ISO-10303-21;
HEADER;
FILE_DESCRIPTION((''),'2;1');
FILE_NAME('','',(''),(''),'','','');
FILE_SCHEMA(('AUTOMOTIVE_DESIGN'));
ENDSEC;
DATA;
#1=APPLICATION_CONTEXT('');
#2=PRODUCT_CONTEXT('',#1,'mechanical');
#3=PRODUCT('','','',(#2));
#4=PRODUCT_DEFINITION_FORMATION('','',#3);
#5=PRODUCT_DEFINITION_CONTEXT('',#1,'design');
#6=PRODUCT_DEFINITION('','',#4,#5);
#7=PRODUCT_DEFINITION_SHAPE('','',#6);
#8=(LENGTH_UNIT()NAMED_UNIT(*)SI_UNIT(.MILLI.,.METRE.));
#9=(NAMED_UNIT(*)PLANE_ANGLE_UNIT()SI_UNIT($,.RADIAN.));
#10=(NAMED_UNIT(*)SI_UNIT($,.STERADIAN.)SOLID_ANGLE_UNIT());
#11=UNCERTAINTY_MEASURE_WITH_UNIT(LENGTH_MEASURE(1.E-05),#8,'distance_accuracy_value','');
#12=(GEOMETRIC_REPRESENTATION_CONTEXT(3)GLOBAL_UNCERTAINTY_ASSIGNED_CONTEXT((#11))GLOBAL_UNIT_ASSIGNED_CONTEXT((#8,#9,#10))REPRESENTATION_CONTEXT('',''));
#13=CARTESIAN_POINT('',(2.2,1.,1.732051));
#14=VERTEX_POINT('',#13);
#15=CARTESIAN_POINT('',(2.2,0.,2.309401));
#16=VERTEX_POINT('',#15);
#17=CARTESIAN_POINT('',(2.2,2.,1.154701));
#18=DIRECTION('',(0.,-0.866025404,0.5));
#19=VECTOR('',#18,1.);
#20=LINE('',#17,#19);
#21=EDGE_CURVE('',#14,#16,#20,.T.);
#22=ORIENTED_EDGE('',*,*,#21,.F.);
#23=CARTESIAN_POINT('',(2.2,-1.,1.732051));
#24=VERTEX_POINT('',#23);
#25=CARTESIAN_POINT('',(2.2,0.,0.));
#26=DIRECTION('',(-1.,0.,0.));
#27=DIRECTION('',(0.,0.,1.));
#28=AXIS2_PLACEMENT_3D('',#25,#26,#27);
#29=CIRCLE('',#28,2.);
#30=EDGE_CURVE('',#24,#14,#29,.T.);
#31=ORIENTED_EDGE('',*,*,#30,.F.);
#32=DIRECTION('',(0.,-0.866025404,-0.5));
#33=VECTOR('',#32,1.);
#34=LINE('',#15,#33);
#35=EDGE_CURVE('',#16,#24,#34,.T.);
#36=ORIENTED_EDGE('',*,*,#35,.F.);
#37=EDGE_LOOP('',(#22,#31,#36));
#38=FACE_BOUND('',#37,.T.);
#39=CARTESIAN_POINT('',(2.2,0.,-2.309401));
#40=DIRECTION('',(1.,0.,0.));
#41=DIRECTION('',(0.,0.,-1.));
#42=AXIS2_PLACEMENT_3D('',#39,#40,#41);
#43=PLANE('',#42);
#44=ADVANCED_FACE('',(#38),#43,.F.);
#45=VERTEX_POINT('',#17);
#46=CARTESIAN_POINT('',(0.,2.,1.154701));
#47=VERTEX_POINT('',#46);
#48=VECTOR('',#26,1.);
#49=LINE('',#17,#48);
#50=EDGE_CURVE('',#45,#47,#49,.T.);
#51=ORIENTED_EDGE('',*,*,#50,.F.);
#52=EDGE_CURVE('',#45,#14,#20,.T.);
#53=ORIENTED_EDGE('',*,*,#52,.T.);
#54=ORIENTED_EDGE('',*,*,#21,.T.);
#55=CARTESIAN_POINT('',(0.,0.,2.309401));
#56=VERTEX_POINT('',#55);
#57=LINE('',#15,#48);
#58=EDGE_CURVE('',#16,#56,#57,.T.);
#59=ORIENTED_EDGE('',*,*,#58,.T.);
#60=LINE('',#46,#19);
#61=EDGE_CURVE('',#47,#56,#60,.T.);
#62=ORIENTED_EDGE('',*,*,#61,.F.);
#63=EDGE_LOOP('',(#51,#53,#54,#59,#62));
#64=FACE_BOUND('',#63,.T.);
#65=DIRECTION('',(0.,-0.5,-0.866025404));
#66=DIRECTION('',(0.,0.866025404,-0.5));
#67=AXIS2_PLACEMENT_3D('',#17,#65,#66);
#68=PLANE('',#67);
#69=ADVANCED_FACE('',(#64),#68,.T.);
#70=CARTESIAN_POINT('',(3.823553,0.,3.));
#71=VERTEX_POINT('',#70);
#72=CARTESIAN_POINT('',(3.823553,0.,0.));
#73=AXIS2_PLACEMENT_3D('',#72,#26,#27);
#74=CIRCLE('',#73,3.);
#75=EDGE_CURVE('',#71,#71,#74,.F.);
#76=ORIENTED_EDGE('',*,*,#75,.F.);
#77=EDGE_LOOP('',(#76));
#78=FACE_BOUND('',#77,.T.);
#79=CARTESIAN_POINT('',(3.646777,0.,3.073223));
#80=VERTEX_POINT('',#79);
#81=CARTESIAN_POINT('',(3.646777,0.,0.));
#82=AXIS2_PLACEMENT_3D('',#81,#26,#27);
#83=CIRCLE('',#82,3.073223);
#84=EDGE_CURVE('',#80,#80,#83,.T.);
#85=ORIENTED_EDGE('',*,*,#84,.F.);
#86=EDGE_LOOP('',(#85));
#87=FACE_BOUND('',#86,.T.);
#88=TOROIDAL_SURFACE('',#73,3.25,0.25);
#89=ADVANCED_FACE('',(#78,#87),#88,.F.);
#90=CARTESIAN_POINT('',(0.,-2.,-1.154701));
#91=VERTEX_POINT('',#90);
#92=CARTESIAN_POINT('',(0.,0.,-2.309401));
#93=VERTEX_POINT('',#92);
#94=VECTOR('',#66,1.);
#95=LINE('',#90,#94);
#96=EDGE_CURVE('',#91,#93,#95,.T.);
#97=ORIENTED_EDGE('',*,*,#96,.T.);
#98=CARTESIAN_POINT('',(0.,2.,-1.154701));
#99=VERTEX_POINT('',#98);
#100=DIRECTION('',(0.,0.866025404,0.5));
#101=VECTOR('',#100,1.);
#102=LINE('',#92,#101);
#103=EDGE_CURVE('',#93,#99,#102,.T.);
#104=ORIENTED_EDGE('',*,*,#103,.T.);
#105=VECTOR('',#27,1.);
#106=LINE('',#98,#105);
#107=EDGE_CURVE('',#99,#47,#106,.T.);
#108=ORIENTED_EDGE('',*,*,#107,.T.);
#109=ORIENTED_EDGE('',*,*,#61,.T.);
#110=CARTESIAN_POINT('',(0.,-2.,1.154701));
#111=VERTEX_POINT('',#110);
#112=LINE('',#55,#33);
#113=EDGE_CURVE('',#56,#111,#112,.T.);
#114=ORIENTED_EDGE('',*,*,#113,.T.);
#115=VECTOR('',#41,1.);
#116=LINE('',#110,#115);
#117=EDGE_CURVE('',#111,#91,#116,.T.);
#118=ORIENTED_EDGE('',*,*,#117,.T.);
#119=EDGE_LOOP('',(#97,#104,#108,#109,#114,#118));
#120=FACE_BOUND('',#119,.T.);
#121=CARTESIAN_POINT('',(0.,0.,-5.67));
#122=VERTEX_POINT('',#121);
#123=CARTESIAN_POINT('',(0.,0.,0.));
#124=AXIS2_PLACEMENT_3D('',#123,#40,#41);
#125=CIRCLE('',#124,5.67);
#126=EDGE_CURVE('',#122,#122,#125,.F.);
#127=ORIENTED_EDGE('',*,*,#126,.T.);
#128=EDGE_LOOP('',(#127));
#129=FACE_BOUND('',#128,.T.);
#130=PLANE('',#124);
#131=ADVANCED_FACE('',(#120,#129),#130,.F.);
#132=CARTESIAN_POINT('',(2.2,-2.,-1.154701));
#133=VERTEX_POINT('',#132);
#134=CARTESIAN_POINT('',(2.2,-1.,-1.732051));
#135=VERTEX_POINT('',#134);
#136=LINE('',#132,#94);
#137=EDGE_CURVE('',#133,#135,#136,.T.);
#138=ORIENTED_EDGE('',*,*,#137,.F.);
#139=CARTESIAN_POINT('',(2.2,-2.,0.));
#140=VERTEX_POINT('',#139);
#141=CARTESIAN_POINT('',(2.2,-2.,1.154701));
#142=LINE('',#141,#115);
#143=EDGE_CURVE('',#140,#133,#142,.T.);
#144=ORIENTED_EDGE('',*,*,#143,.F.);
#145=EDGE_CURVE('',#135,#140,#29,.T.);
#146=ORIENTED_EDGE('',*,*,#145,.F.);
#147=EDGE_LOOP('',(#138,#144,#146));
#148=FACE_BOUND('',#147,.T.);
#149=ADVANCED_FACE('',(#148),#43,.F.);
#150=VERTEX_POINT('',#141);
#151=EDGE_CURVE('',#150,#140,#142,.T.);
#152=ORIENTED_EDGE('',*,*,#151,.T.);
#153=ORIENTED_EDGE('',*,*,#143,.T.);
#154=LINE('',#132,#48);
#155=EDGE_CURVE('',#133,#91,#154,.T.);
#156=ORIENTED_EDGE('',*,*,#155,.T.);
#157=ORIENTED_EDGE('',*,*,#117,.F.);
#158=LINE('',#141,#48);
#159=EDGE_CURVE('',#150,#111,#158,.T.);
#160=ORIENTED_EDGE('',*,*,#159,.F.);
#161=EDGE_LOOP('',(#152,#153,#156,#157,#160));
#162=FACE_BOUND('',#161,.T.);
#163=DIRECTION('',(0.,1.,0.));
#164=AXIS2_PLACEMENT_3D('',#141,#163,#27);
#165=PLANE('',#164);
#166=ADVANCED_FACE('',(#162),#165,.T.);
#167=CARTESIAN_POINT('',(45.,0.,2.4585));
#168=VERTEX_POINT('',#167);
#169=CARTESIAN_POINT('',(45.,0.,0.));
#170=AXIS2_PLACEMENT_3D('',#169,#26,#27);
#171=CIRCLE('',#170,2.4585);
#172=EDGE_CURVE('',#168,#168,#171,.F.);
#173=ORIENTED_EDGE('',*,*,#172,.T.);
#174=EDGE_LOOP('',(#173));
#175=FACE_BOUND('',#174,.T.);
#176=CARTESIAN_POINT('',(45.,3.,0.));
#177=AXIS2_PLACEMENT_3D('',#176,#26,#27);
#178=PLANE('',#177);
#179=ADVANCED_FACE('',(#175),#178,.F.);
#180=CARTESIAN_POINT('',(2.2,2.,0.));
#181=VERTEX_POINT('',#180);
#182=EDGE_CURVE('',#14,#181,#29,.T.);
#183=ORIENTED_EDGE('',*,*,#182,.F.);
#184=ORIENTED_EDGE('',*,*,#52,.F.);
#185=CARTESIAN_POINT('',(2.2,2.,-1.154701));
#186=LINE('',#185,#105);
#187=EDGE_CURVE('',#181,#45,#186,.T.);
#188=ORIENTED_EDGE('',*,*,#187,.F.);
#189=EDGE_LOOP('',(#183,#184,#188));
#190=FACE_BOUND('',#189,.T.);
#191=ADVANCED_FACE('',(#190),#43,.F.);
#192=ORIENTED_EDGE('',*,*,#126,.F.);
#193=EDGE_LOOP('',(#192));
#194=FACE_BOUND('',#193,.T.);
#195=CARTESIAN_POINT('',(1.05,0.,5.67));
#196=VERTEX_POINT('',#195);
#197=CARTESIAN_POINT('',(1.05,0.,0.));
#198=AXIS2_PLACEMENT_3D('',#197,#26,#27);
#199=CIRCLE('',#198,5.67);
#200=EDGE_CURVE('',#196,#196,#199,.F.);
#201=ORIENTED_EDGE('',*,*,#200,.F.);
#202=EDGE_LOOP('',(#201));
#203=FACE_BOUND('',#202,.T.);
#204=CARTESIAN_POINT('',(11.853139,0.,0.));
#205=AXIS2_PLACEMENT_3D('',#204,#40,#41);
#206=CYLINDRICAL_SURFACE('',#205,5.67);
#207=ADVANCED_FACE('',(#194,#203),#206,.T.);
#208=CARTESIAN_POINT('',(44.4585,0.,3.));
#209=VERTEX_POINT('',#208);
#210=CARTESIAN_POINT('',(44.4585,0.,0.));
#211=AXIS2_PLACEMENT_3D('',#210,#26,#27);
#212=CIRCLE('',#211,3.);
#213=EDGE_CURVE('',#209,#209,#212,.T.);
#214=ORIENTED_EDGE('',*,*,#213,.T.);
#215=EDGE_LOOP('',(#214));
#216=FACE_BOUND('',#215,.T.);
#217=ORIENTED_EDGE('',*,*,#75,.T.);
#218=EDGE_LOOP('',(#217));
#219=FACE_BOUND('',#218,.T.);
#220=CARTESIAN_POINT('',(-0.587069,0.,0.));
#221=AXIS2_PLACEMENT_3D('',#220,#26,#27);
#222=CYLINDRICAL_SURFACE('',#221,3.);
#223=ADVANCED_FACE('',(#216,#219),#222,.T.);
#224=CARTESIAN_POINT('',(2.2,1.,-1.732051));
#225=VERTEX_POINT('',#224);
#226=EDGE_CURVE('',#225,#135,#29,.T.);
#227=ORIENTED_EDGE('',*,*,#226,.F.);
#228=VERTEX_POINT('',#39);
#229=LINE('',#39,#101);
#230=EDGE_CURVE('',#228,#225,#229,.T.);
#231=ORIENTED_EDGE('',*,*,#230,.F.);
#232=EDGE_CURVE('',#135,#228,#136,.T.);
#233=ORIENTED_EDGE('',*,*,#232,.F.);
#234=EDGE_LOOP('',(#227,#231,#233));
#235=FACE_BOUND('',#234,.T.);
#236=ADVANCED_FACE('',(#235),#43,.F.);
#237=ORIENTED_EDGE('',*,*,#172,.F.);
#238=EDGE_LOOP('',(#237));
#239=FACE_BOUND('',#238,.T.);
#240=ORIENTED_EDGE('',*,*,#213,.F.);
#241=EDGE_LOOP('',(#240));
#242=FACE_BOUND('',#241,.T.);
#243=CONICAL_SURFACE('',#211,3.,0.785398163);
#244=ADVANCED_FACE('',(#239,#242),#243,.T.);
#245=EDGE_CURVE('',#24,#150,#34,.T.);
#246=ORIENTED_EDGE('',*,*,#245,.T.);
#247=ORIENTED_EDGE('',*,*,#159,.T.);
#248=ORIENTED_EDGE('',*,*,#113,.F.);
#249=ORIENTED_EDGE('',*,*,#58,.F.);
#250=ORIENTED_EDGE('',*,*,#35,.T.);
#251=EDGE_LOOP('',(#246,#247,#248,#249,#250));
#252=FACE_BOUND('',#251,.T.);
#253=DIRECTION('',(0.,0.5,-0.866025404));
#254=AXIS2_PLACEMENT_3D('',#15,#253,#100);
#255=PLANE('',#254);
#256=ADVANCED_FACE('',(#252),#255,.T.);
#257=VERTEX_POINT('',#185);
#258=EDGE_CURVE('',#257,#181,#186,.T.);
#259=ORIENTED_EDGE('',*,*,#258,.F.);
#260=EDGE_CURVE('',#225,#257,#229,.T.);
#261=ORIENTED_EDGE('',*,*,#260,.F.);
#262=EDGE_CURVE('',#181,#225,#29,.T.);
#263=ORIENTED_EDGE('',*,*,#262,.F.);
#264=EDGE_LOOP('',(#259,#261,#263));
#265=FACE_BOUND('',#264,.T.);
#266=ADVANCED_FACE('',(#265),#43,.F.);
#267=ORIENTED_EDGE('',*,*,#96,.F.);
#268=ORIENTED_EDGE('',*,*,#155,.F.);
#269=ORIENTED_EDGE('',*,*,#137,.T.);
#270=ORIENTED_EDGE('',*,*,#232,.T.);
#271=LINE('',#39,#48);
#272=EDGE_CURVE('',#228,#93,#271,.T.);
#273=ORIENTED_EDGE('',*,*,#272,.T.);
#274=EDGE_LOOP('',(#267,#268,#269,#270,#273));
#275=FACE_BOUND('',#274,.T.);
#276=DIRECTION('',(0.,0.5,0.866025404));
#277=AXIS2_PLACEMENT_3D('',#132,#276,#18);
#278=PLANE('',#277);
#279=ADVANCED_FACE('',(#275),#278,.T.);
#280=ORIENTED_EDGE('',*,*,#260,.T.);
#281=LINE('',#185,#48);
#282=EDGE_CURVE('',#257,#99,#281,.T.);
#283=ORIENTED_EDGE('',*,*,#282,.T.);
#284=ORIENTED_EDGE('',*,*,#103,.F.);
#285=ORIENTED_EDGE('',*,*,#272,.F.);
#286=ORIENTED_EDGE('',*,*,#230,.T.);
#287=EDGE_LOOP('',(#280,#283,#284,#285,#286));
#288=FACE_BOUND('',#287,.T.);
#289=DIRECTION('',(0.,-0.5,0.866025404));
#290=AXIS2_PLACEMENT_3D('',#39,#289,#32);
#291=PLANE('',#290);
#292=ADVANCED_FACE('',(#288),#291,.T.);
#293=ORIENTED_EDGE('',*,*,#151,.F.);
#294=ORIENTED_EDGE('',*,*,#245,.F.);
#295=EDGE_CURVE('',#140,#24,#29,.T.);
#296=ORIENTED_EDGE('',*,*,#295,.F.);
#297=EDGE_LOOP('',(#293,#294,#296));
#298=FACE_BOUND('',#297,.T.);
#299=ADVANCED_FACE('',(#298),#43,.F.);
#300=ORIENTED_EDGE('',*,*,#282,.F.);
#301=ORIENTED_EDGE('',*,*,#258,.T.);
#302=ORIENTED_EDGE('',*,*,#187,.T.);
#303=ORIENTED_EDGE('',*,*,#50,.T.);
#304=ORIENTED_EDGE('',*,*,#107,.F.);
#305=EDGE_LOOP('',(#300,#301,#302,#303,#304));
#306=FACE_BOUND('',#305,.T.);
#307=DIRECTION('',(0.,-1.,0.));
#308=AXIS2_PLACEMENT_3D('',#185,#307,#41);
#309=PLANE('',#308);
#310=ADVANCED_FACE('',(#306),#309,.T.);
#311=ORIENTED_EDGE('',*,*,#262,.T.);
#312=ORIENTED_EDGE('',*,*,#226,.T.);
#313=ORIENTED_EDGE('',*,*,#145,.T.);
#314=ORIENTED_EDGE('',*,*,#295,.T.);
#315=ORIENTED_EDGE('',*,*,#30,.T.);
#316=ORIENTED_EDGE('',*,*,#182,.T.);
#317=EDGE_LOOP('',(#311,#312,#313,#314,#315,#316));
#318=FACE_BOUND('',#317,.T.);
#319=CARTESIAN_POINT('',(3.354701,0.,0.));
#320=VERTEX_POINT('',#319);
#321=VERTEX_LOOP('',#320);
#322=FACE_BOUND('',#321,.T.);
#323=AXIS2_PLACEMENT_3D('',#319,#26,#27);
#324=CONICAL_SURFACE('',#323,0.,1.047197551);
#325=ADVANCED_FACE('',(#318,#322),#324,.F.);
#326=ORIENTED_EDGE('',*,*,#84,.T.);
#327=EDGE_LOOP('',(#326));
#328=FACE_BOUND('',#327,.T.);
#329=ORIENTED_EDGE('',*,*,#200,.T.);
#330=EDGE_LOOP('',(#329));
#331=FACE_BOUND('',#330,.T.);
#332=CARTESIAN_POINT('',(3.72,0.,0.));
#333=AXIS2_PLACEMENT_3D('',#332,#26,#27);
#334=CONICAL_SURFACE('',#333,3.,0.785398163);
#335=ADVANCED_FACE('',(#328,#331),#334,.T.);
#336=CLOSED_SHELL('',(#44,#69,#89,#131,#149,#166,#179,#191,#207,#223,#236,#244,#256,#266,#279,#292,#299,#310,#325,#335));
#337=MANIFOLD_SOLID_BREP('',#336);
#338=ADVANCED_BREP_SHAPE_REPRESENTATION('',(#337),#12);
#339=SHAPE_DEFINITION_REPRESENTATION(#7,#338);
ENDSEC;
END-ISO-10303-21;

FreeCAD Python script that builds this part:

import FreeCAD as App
import Part
import Sketcher

V = App.Vector
Q = App.Units.Quantity


def edges_at(feature, points):
    """Names of the edges that pass closest to the given points."""
    edges = feature.Shape.Edges
    near = lambda p: min(range(len(edges)), key=lambda i: edges[i].distToShape(Part.Vertex(*p))[0])
    return sorted({f"Edge{near(p) + 1}" for p in points})

doc = App.newDocument("Part")
body = doc.addObject("PartDesign::Body", "Body")

sketch1 = body.newObject("Sketcher::SketchObject", "Sketch")
sketch1.AttachmentSupport = (doc.getObject("XY_Plane"), [""])
sketch1.MapMode = "FlatFace"
sketch1.addGeometry([
    Part.LineSegment(V(0, 6.72, 0), V(0, 0, 0)),
    Part.LineSegment(V(0, 0, 0), V(45, 0, 0)),
    Part.LineSegment(V(45, 0, 0), V(45, 3, 0)),
    Part.LineSegment(V(45, 3, 0), V(3.72, 3, 0)),
    Part.LineSegment(V(3.72, 3, 0), V(0, 6.72, 0)),
], False)
sketch1.addConstraint([
    Sketcher.Constraint("Coincident", 0, 2, 1, 1),
    Sketcher.Constraint("Coincident", 1, 2, 2, 1),
    Sketcher.Constraint("Coincident", 2, 2, 3, 1),
    Sketcher.Constraint("Coincident", 3, 2, 4, 1),
    Sketcher.Constraint("Coincident", 4, 2, 0, 1),
    Sketcher.Constraint("Vertical", 0),
    Sketcher.Constraint("Horizontal", 1),
    Sketcher.Constraint("Vertical", 2),
    Sketcher.Constraint("Horizontal", 3),
    Sketcher.Constraint("Coincident", 0, 2, -1, 1),
    Sketcher.Constraint("DistanceX", 1, 1, 1, 2, 45.0),
    Sketcher.Constraint("DistanceY", 2, 1, 2, 2, 3.0),
    Sketcher.Constraint("Angle", 4, Q("135 deg")),
    Sketcher.Constraint("DistanceX", 3, 2, 3, 1, 41.28),
])
revolution = body.newObject("PartDesign::Revolution", "Revolution")
revolution.Profile = sketch1
revolution.ReferenceAxis = (sketch1, ["H_Axis"])
revolution.Angle = 360

sketch2 = body.newObject("Sketcher::SketchObject", "Sketch001")
sketch2.AttachmentSupport = (doc.getObject("YZ_Plane"), [""])
sketch2.MapMode = "FlatFace"
sketch2.addGeometry([
    Part.LineSegment(V(0, -2.309401, 0), V(2, -1.154701, 0)),
    Part.LineSegment(V(2, -1.154701, 0), V(2, 1.154701, 0)),
    Part.LineSegment(V(2, 1.154701, 0), V(0, 2.309401, 0)),
    Part.LineSegment(V(0, 2.309401, 0), V(-2, 1.154701, 0)),
    Part.LineSegment(V(-2, 1.154701, 0), V(-2, -1.154701, 0)),
    Part.LineSegment(V(-2, -1.154701, 0), V(0, -2.309401, 0)),
], False)
sketch2.addConstraint([
    Sketcher.Constraint("Coincident", 0, 2, 1, 1),
    Sketcher.Constraint("Coincident", 1, 2, 2, 1),
    Sketcher.Constraint("Coincident", 2, 2, 3, 1),
    Sketcher.Constraint("Coincident", 3, 2, 4, 1),
    Sketcher.Constraint("Coincident", 4, 2, 5, 1),
    Sketcher.Constraint("Coincident", 5, 2, 0, 1),
    Sketcher.Constraint("Vertical", 1),
    Sketcher.Constraint("Vertical", 4),
    Sketcher.Constraint("Symmetric", 0, 2, 3, 2, -1, 1),
    Sketcher.Constraint("Symmetric", 2, 2, 5, 2, -1, 1),
    Sketcher.Constraint("PointOnObject", 2, 2, -2),
    Sketcher.Constraint("Parallel", 2, 5),
    Sketcher.Constraint("Horizontal", 1, 2, 3, 2),
    Sketcher.Constraint("Angle", 0, Q("30 deg")),
    Sketcher.Constraint("DistanceX", -1, 1, 0, 2, 2.0),
    Sketcher.Constraint("DistanceY", 1, 1, 1, 2, 2.309401),
])
pocket1 = body.newObject("PartDesign::Pocket", "Pocket")
pocket1.Profile = sketch2
pocket1.Length = 2.2
pocket1.Reversed = True

sketch3 = body.newObject("Sketcher::SketchObject", "Sketch002")
sketch3.AttachmentSupport = (doc.getObject("XY_Plane"), [""])
sketch3.MapMode = "FlatFace"
sketch3.addGeometry([
    Part.LineSegment(V(3.354701, 0, 0), V(2.2, 2, 0)),
    Part.LineSegment(V(2.2, 2, 0), V(2.2, 0, 0)),
    Part.LineSegment(V(2.2, 0, 0), V(3.354701, 0, 0)),
], False)
sketch3.addConstraint([
    Sketcher.Constraint("Coincident", 0, 2, 1, 1),
    Sketcher.Constraint("Coincident", 1, 2, 2, 1),
    Sketcher.Constraint("Coincident", 2, 2, 0, 1),
    Sketcher.Constraint("Vertical", 1),
    Sketcher.Constraint("Horizontal", 2),
    Sketcher.Constraint("PointOnObject", 1, 2, -1),
    Sketcher.Constraint("DistanceY", 1, 2, 1, 1, 2.0),
    Sketcher.Constraint("Angle", 0, Q("120 deg")),
    Sketcher.Constraint("DistanceX", -1, 1, 0, 2, 2.2),
])
groove = body.newObject("PartDesign::Groove", "Groove")
groove.Profile = sketch3
groove.ReferenceAxis = (sketch3, ["H_Axis"])
groove.Angle = 360
doc.recompute()

fillet = body.newObject("PartDesign::Fillet", "Fillet")
fillet.Base = (groove, edges_at(groove, [(3.72, 0, -3)]))
fillet.Radius = 0.25
doc.recompute()

chamfer = body.newObject("PartDesign::Chamfer", "Chamfer")
chamfer.Base = (fillet, edges_at(fillet, [(45, 0, -3)]))
chamfer.Size = 0.5415

sketch4 = body.newObject("Sketcher::SketchObject", "Sketch003")
sketch4.AttachmentSupport = (doc.getObject("XZ_Plane"), [""])
sketch4.MapMode = "FlatFace"
sketch4.addGeometry([
    Part.LineSegment(V(-2, -10.67, 0), V(-2, -5.67, 0)),
    Part.LineSegment(V(-2, -5.67, 0), V(3, -5.67, 0)),
    Part.LineSegment(V(3, -5.67, 0), V(3, -10.67, 0)),
    Part.LineSegment(V(3, -10.67, 0), V(-2, -10.67, 0)),
], False)
sketch4.addConstraint([
    Sketcher.Constraint("Coincident", 0, 2, 1, 1),
    Sketcher.Constraint("Coincident", 1, 2, 2, 1),
    Sketcher.Constraint("Coincident", 2, 2, 3, 1),
    Sketcher.Constraint("Coincident", 3, 2, 0, 1),
    Sketcher.Constraint("Vertical", 0),
    Sketcher.Constraint("Horizontal", 1),
    Sketcher.Constraint("Vertical", 2),
    Sketcher.Constraint("Horizontal", 3),
    Sketcher.Constraint("Equal", 3, 0),
    Sketcher.Constraint("DistanceX", 1, 1, 1, 2, 5.0),
    Sketcher.Constraint("DistanceX", 0, 2, -1, 1, 2.0),
    Sketcher.Constraint("DistanceY", 0, 2, -1, 1, 5.67),
])
groove2 = body.newObject("PartDesign::Groove", "Groove001")
groove2.Profile = sketch4
groove2.ReferenceAxis = (sketch4, ["H_Axis"])
groove2.Angle = 360

doc.recompute()
